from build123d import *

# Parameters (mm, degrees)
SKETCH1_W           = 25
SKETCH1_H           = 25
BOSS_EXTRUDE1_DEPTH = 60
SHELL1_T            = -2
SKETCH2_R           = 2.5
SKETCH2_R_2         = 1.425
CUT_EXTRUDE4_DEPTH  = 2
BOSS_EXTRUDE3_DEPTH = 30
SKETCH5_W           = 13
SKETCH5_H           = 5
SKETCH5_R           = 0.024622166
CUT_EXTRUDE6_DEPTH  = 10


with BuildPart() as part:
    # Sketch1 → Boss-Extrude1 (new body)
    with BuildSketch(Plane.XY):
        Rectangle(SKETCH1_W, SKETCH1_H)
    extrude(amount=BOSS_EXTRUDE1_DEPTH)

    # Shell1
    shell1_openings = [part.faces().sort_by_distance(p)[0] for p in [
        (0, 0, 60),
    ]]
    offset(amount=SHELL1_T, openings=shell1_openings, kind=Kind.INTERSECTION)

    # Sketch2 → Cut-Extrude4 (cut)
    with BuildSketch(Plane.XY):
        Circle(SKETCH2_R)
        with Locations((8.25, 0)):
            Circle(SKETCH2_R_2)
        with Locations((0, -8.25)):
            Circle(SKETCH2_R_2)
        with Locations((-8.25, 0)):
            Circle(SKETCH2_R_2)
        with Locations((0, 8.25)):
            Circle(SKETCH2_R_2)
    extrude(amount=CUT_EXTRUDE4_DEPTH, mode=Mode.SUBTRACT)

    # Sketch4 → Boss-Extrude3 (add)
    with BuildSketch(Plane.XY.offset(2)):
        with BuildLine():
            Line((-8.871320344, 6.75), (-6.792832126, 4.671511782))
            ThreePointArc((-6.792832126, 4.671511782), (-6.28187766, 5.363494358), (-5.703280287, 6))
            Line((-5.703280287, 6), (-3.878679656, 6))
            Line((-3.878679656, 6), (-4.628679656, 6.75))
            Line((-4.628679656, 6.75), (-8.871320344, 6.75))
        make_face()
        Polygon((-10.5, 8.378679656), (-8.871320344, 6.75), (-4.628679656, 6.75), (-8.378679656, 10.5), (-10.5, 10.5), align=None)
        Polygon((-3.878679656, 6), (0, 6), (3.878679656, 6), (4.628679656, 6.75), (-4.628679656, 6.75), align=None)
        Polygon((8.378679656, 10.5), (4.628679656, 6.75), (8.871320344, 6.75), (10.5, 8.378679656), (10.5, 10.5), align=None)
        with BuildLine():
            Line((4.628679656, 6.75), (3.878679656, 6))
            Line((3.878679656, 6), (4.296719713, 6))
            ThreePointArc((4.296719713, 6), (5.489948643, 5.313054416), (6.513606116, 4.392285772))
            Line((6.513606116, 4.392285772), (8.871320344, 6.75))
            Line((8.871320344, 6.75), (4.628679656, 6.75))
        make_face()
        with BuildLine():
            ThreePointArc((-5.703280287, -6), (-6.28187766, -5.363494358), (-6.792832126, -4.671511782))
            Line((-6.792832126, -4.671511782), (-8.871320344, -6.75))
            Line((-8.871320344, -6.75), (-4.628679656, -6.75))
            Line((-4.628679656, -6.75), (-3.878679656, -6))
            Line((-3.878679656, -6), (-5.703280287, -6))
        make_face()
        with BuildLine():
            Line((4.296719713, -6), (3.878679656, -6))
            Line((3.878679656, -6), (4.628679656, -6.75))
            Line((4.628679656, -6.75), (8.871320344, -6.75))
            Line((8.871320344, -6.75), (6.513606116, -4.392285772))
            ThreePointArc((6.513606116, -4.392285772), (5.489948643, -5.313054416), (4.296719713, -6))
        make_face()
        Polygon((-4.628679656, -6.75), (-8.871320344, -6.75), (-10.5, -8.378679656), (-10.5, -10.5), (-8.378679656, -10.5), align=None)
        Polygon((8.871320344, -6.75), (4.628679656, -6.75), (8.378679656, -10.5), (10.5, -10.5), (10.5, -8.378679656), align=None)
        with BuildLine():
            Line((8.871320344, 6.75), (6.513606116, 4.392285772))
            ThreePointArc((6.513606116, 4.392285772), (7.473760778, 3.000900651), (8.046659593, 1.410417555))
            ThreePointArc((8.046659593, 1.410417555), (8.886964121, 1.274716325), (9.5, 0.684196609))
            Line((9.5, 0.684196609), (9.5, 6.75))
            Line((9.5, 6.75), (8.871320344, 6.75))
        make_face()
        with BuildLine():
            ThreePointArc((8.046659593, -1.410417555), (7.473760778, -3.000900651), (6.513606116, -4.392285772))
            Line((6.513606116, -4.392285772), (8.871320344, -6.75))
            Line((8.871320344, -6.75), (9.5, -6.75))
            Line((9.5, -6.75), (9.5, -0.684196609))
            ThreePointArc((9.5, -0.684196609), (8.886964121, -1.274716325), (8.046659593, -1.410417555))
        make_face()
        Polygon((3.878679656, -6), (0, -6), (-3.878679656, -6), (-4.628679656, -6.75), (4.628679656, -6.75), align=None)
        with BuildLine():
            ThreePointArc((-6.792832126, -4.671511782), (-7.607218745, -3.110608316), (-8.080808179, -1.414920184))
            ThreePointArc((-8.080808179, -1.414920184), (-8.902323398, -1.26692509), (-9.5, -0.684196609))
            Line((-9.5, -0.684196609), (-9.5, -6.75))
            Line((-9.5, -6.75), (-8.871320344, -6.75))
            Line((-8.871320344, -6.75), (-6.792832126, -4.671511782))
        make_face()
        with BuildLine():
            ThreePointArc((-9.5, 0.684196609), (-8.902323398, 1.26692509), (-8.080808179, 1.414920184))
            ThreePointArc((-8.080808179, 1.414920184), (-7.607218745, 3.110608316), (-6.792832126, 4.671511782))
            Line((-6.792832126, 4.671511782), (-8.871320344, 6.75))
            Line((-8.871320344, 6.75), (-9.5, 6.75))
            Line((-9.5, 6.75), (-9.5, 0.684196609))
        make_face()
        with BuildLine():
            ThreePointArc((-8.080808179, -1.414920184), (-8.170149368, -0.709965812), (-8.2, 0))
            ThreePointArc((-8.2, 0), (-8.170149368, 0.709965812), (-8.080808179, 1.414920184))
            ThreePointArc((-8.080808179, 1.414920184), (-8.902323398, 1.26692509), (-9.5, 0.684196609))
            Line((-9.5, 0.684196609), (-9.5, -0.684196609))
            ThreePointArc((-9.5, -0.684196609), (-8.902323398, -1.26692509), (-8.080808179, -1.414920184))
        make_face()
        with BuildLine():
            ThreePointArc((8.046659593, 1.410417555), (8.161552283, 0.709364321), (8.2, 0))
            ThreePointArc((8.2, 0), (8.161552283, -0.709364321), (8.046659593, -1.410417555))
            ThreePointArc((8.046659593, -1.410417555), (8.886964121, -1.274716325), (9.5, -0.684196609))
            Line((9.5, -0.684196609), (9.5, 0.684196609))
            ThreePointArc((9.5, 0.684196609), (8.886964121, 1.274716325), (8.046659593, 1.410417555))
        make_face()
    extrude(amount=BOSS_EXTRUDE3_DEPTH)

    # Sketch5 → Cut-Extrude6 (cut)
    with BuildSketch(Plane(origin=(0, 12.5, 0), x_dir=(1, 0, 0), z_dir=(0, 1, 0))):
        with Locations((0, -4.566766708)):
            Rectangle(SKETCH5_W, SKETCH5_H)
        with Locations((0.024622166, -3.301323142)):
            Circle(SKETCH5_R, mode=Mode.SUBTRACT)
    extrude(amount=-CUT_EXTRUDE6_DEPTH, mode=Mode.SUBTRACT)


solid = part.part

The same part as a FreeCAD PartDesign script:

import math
import FreeCAD as App
import Part
import Sketcher
Q = App.Units.Quantity


def faces_at(feature, points):
    """Names of the faces that lie closest to the given points."""
    faces = feature.Shape.Faces
    near = lambda p: min(range(len(faces)), key=lambda i: faces[i].distToShape(Part.Vertex(*p))[0])
    return sorted({f"Face{near(p) + 1}" for p in points})

doc = App.newDocument("Part")
body = doc.addObject("PartDesign::Body", "Body")
body.AllowCompound = True

# Sketch on XY plane
sketch1 = body.newObject("Sketcher::SketchObject", "Sketch")
sketch1.AttachmentSupport = (doc.getObject("XY_Plane"), [""])
sketch1.MapMode = "FlatFace"
sketch1.addGeometry([
    Part.LineSegment(App.Vector(-12.5, 12.5, 0), App.Vector(-12.5, -12.5, 0)),
    Part.LineSegment(App.Vector(-12.5, -12.5, 0), App.Vector(12.5, -12.5, 0)),
    Part.LineSegment(App.Vector(12.5, -12.5, 0), App.Vector(12.5, 12.5, 0)),
    Part.LineSegment(App.Vector(12.5, 12.5, 0), App.Vector(-12.5, 12.5, 0)),
], False)
sketch1.addConstraint([
    Sketcher.Constraint("Coincident", 0, 2, 1, 1),
    Sketcher.Constraint("Coincident", 1, 2, 2, 1),
    Sketcher.Constraint("Coincident", 2, 2, 3, 1),
    Sketcher.Constraint("Coincident", 3, 2, 0, 1),
    Sketcher.Constraint("Vertical", 0),
    Sketcher.Constraint("Horizontal", 1),
    Sketcher.Constraint("Vertical", 2),
    Sketcher.Constraint("Horizontal", 3),
    Sketcher.Constraint("Symmetric", 0, 2, 2, 2, -1, 1),
    Sketcher.Constraint("Equal", 3, 0),
    Sketcher.Constraint("DistanceX", 1, 1, 1, 2, Q("25 mm")),
])
pad1 = body.newObject("PartDesign::Pad", "Pad")
pad1.Profile = sketch1
pad1.Length = 60
doc.recompute()

thickness = body.newObject("PartDesign::Thickness", "Thickness")
thickness.Base = (pad1, faces_at(pad1, [(0, 0, 60)]))
thickness.Value = 2
thickness.Reversed = True
thickness.Join = "Intersection"

# Sketch on XY plane
sketch2 = body.newObject("Sketcher::SketchObject", "Sketch001")
sketch2.AttachmentSupport = (doc.getObject("XY_Plane"), [""])
sketch2.MapMode = "FlatFace"
sketch2.addGeometry([
    Part.Circle(App.Vector(0, 0, 0), App.Vector(0, 0, 1), 2.5),  # 0
    Part.Circle(App.Vector(8.25, 0, 0), App.Vector(0, 0, 1), 1.425),  # 1
    Part.Circle(App.Vector(0, -8.25, 0), App.Vector(0, 0, 1), 1.425),  # 2
    Part.Circle(App.Vector(-8.25, 0, 0), App.Vector(0, 0, 1), 1.425),  # 3
    Part.Circle(App.Vector(0, 8.25, 0), App.Vector(0, 0, 1), 1.425),  # 4
], False)
sketch2.addConstraint([
    Sketcher.Constraint("Coincident", 0, 3, -1, 1),
    Sketcher.Constraint("Equal", 1, 2),
    Sketcher.Constraint("Equal", 2, 3),
    Sketcher.Constraint("Equal", 3, 4),
    Sketcher.Constraint("Symmetric", 1, 3, 3, 3, -1, 1),
    Sketcher.Constraint("Symmetric", 2, 3, 4, 3, -1, 1),
    Sketcher.Constraint("PointOnObject", 1, 3, -1),
    Sketcher.Constraint("PointOnObject", 2, 3, -2),
    Sketcher.Constraint("Diameter", 0, Q("5 mm")),
    Sketcher.Constraint("Diameter", 1, Q("2.85 mm")),
    Sketcher.Constraint("DistanceX", 3, 3, 1, 3, Q("16.5 mm")),
    Sketcher.Constraint("DistanceY", 2, 3, 4, 3, Q("16.5 mm")),
])
pocket1 = body.newObject("PartDesign::Pocket", "Pocket")
pocket1.Profile = sketch2
pocket1.Length = 2
pocket1.Reversed = True

# Sketch on XY plane
sketch3 = body.newObject("Sketcher::SketchObject", "Sketch002")
sketch3.AttachmentSupport = (doc.getObject("XY_Plane"), [""])
sketch3.MapMode = "FlatFace"
sketch3.AttachmentOffset = App.Placement(App.Vector(0, 0, 2), App.Rotation())
sketch3.addGeometry([
    Part.LineSegment(App.Vector(9.5, 6.75, 0), App.Vector(8.87132, 6.75, 0)),  # 0
    Part.LineSegment(App.Vector(8.87132, 6.75, 0), App.Vector(10.5, 8.37868, 0)),  # 1
    Part.LineSegment(App.Vector(10.5, 8.37868, 0), App.Vector(10.5, 10.5, 0)),  # 2
    Part.LineSegment(App.Vector(10.5, 10.5, 0), App.Vector(8.37868, 10.5, 0)),  # 3
    Part.LineSegment(App.Vector(8.37868, 10.5, 0), App.Vector(4.62868, 6.75, 0)),  # 4
    Part.LineSegment(App.Vector(4.62868, 6.75, 0), App.Vector(-4.62868, 6.75, 0)),  # 5
    Part.LineSegment(App.Vector(-4.62868, 6.75, 0), App.Vector(-8.37868, 10.5, 0)),  # 6
    Part.LineSegment(App.Vector(-8.37868, 10.5, 0), App.Vector(-10.5, 10.5, 0)),  # 7
    Part.LineSegment(App.Vector(-10.5, 10.5, 0), App.Vector(-10.5, 8.37868, 0)),  # 8
    Part.LineSegment(App.Vector(-10.5, 8.37868, 0), App.Vector(-8.87132, 6.75, 0)),  # 9
    Part.LineSegment(App.Vector(-8.87132, 6.75, 0), App.Vector(-9.5, 6.75, 0)),  # 10
    Part.LineSegment(App.Vector(-9.5, 6.75, 0), App.Vector(-9.5, -6.75, 0)),  # 11
    Part.LineSegment(App.Vector(-9.5, -6.75, 0), App.Vector(-8.87132, -6.75, 0)),  # 12
    Part.LineSegment(App.Vector(-8.87132, -6.75, 0), App.Vector(-10.5, -8.37868, 0)),  # 13
    Part.LineSegment(App.Vector(-10.5, -8.37868, 0), App.Vector(-10.5, -10.5, 0)),  # 14
    Part.LineSegment(App.Vector(-10.5, -10.5, 0), App.Vector(-8.37868, -10.5, 0)),  # 15
    Part.LineSegment(App.Vector(-8.37868, -10.5, 0), App.Vector(-4.62868, -6.75, 0)),  # 16
    Part.LineSegment(App.Vector(-4.62868, -6.75, 0), App.Vector(4.62868, -6.75, 0)),  # 17
    Part.LineSegment(App.Vector(4.62868, -6.75, 0), App.Vector(8.37868, -10.5, 0)),  # 18
    Part.LineSegment(App.Vector(8.37868, -10.5, 0), App.Vector(10.5, -10.5, 0)),  # 19
    Part.LineSegment(App.Vector(10.5, -10.5, 0), App.Vector(10.5, -8.37868, 0)),  # 20
    Part.LineSegment(App.Vector(10.5, -8.37868, 0), App.Vector(8.87132, -6.75, 0)),  # 21
    Part.LineSegment(App.Vector(8.87132, -6.75, 0), App.Vector(9.5, -6.75, 0)),  # 22
    Part.LineSegment(App.Vector(9.5, -6.75, 0), App.Vector(9.5, 6.75, 0)),  # 23
    Part.ArcOfCircle(Part.Circle(App.Vector(0.25782, 0, 0), App.Vector(0, 0, 1), 8.45782), math.radians(134.813662), math.radians(146.472957)),  # 24
    Part.LineSegment(App.Vector(-5.70328, 6, 0), App.Vector(4.29672, 6, 0)),  # 25
    Part.ArcOfCircle(Part.Circle(App.Vector(1.636854, 0, 0), App.Vector(0, 0, 1), 6.563146), math.radians(42.008034), math.radians(66.091766)),  # 26
    Part.ArcOfCircle(Part.Circle(App.Vector(1.636854, 0, 0), App.Vector(0, 0, 1), 6.563146), math.radians(12.409638), math.radians(42.008034)),  # 27
    Part.ArcOfCircle(Part.Circle(App.Vector(1.636854, 0, 0), App.Vector(0, 0, 1), 6.563146), math.radians(0), math.radians(12.409638)),  # 28
    Part.ArcOfCircle(Part.Circle(App.Vector(1.636854, 0, 0), App.Vector(0, 0, 1), 6.563146), math.radians(-12.409638), math.radians(0)),  # 29
    Part.ArcOfCircle(Part.Circle(App.Vector(1.636854, 0, 0), App.Vector(0, 0, 1), 6.563146), math.radians(-42.008034), math.radians(-12.409638)),  # 30
    Part.ArcOfCircle(Part.Circle(App.Vector(1.636854, 0, 0), App.Vector(0, 0, 1), 6.563146), math.radians(-66.091766), math.radians(-42.008034)),  # 31
    Part.LineSegment(App.Vector(4.29672, -6, 0), App.Vector(-5.70328, -6, 0)),  # 32
    Part.ArcOfCircle(Part.Circle(App.Vector(0.25782, 0, 0), App.Vector(0, 0, 1), 8.45782), math.radians(-146.472957), math.radians(-134.813662)),  # 33
    Part.ArcOfCircle(Part.Circle(App.Vector(0.257819, 0, 0), App.Vector(0, 0, 1), 8.457819), math.radians(-170.369629), math.radians(-146.472957)),  # 34
    Part.ArcOfCircle(Part.Circle(App.Vector(0.25782, 0, 0), App.Vector(0, 0, 1), 8.45782), math.radians(-180), math.radians(-170.369629)),  # 35
    Part.ArcOfCircle(Part.Circle(App.Vector(0.25782, 0, 0), App.Vector(0, 0, 1), 8.45782), math.radians(170.369629), math.radians(180)),  # 36
    Part.ArcOfCircle(Part.Circle(App.Vector(0.257819, 0, 0), App.Vector(0, 0, 1), 8.457819), math.radians(146.472957), math.radians(170.369629)),  # 37
], False)
sketch3.addConstraint([
    Sketcher.Constraint("Coincident", 0, 2, 1, 1),
    Sketcher.Constraint("Coincident", 1, 2, 2, 1),
    Sketcher.Constraint("Coincident", 2, 2, 3, 1),
    Sketcher.Constraint("Coincident", 3, 2, 4, 1),
    Sketcher.Constraint("Coincident", 4, 2, 5, 1),
    Sketcher.Constraint("Coincident", 5, 2, 6, 1),
    Sketcher.Constraint("Coincident", 6, 2, 7, 1),
    Sketcher.Constraint("Coincident", 7, 2, 8, 1),
    Sketcher.Constraint("Coincident", 8, 2, 9, 1),
    Sketcher.Constraint("Coincident", 9, 2, 10, 1),
    Sketcher.Constraint("Coincident", 10, 2, 11, 1),
    Sketcher.Constraint("Coincident", 11, 2, 12, 1),
    Sketcher.Constraint("Coincident", 12, 2, 13, 1),
    Sketcher.Constraint("Coincident", 13, 2, 14, 1),
    Sketcher.Constraint("Coincident", 14, 2, 15, 1),
    Sketcher.Constraint("Coincident", 15, 2, 16, 1),
    Sketcher.Constraint("Coincident", 16, 2, 17, 1),
    Sketcher.Constraint("Coincident", 17, 2, 18, 1),
    Sketcher.Constraint("Coincident", 18, 2, 19, 1),
    Sketcher.Constraint("Coincident", 19, 2, 20, 1),
    Sketcher.Constraint("Coincident", 20, 2, 21, 1),
    Sketcher.Constraint("Coincident", 21, 2, 22, 1),
    Sketcher.Constraint("Coincident", 22, 2, 23, 1),
    Sketcher.Constraint("Coincident", 23, 2, 0, 1),
    Sketcher.Constraint("Coincident", 24, 1, 25, 1),
    Sketcher.Constraint("Coincident", 25, 2, 26, 2),
    Sketcher.Constraint("Tangent", 26, 1, 27, 2),
    Sketcher.Constraint("Tangent", 27, 1, 28, 2),
    Sketcher.Constraint("Tangent", 28, 1, 29, 2),
    Sketcher.Constraint("Tangent", 29, 1, 30, 2),
    Sketcher.Constraint("Tangent", 30, 1, 31, 2),
    Sketcher.Constraint("Coincident", 31, 1, 32, 1),
    Sketcher.Constraint("Coincident", 32, 2, 33, 2),
    Sketcher.Constraint("Tangent", 33, 1, 34, 2),
    Sketcher.Constraint("Tangent", 34, 1, 35, 2),
    Sketcher.Constraint("Tangent", 35, 1, 36, 2),
    Sketcher.Constraint("Tangent", 36, 1, 37, 2),
    Sketcher.Constraint("Tangent", 37, 1, 24, 2),
    Sketcher.Constraint("Horizontal", 0),
    Sketcher.Constraint("Vertical", 2),
    Sketcher.Constraint("Horizontal", 3),
    Sketcher.Constraint("Horizontal", 5),
    Sketcher.Constraint("Horizontal", 7),
    Sketcher.Constraint("Vertical", 8),
    Sketcher.Constraint("Horizontal", 10),
    Sketcher.Constraint("Vertical", 11),
    Sketcher.Constraint("Horizontal", 12),
    Sketcher.Constraint("Vertical", 14),
    Sketcher.Constraint("Horizontal", 15),
    Sketcher.Constraint("Horizontal", 17),
    Sketcher.Constraint("Horizontal", 19),
    Sketcher.Constraint("Vertical", 20),
    Sketcher.Constraint("Horizontal", 22),
    Sketcher.Constraint("Vertical", 23),
    Sketcher.Constraint("Horizontal", 25),
    Sketcher.Constraint("Horizontal", 32),
    Sketcher.Constraint("Coincident", 28, 3, 26, 3),
    Sketcher.Constraint("Coincident", 30, 3, 26, 3),
    Sketcher.Constraint("Coincident", 33, 3, 24, 3),
    Sketcher.Constraint("Coincident", 35, 3, 24, 3),
    Sketcher.Constraint("Equal", 30, 31),
    Sketcher.Constraint("Equal", 24, 33),
    Sketcher.Constraint("Symmetric", 0, 2, 12, 2, -1, 1),
    Sketcher.Constraint("Symmetric", 1, 2, 13, 2, -1, 1),
    Sketcher.Constraint("Symmetric", 3, 2, 15, 2, -1, 1),
    Sketcher.Constraint("Symmetric", 4, 2, 16, 2, -1, 1),
    Sketcher.Constraint("Symmetric", 6, 2, 18, 2, -1, 1),
    Sketcher.Constraint("Symmetric", 8, 2, 20, 2, -1, 1),
    Sketcher.Constraint("Symmetric", 9, 2, 21, 2, -1, 1),
    Sketcher.Constraint("Symmetric", 28, 1, 35, 1, -1, 1),
    Sketcher.Constraint("Symmetric", 3, 2, 6, 2, -2),
    Sketcher.Constraint("Symmetric", 1, 2, 8, 2, -2),
    Sketcher.Constraint("Symmetric", 0, 2, 9, 2, -2),
    Sketcher.Constraint("Symmetric", 27, 1, 29, 1, -1),
    Sketcher.Constraint("Symmetric", 24, 1, 32, 2, -1),
    Sketcher.Constraint("PointOnObject", 28, 1, -1),
    Sketcher.Constraint("Parallel", 1, 4),
    Sketcher.Constraint("Perpendicular", 4, 6),
    Sketcher.Constraint("Parallel", 6, 9),
    Sketcher.Constraint("Perpendicular", 16, 18),
    Sketcher.Constraint("Horizontal", 0, 2, 4, 2),
    Sketcher.Constraint("Vertical", 26, 1, 30, 1),
    Sketcher.Constraint("Vertical", 34, 1, 36, 1),
    Sketcher.Constraint("Vertical", 33, 1, 37, 1),
    Sketcher.Constraint("Equal", 0, 10),
    Sketcher.Constraint("Equal", 19, 2),
    Sketcher.Constraint("DistanceX", 25, 1, 25, 2, Q("10 mm")),
    Sketcher.Constraint("DistanceY", 11, 2, 11, 1, Q("13.5 mm")),
    Sketcher.Constraint("DistanceY", -1, 1, 24, 1, Q("6 mm")),
    Sketcher.Constraint("DistanceX", 8, 2, 10, 2, Q("1 mm")),
    Sketcher.Constraint("DistanceX", -1, 1, 1, 2, Q("10.5 mm")),
    Sketcher.Constraint("DistanceY", -1, 1, 2, 2, Q("10.5 mm")),
    Sketcher.Constraint("DistanceX", -1, 1, 28, 1, Q("8.2 mm")),
    Sketcher.Constraint("Radius", 24, Q("8.45782 mm")),
    Sketcher.Constraint("Distance", 1, Q("2.303301 mm")),
    Sketcher.Constraint("DistanceX", -1, 1, 27, 1, Q("8.04666 mm")),
    Sketcher.Constraint("DistanceY", 33, 1, -1, 1, Q("4.671512 mm")),
    Sketcher.Constraint("DistanceX", 34, 1, -1, 1, Q("8.080808 mm")),
    Sketcher.Constraint("DistanceY", 27, 1, 26, 1, Q("2.981868 mm")),
])
pad2 = body.newObject("PartDesign::Pad", "Pad001")
pad2.Profile = sketch3
pad2.Length = 30

# Sketch on XZ plane
sketch4 = body.newObject("Sketcher::SketchObject", "Sketch003")
sketch4.AttachmentSupport = (doc.getObject("XZ_Plane"), [""])
sketch4.MapMode = "FlatFace"
sketch4.AttachmentOffset = App.Placement(App.Vector(0, 0, -12.5), App.Rotation())
sketch4.addGeometry([
    Part.LineSegment(App.Vector(-6.5, 2.066767, 0), App.Vector(-6.5, 7.066767, 0)),  # 0
    Part.LineSegment(App.Vector(-6.5, 7.066767, 0), App.Vector(6.5, 7.066767, 0)),  # 1
    Part.LineSegment(App.Vector(6.5, 7.066767, 0), App.Vector(6.5, 2.066767, 0)),  # 2
    Part.LineSegment(App.Vector(6.5, 2.066767, 0), App.Vector(-6.5, 2.066767, 0)),  # 3
    Part.Circle(App.Vector(0.024622, 3.301323, 0), App.Vector(0, 0, 1), 0.024622),  # 4
], False)
sketch4.addConstraint([
    Sketcher.Constraint("Coincident", 0, 2, 1, 1),
    Sketcher.Constraint("Coincident", 1, 2, 2, 1),
    Sketcher.Constraint("Coincident", 2, 2, 3, 1),
    Sketcher.Constraint("Coincident", 3, 2, 0, 1),
    Sketcher.Constraint("Vertical", 0),
    Sketcher.Constraint("Horizontal", 1),
    Sketcher.Constraint("Vertical", 2),
    Sketcher.Constraint("Horizontal", 3),
    Sketcher.Constraint("DistanceX", 1, 1, 1, 2, Q("13 mm")),
    Sketcher.Constraint("DistanceY", 0, 1, 0, 2, Q("5 mm")),
    Sketcher.Constraint("DistanceX", 0, 2, -1, 1, Q("6.5 mm")),
    Sketcher.Constraint("Diameter", 4, Q("0.049244 mm")),
    Sketcher.Constraint("DistanceX", -1, 1, 4, 3, Q("0.024622 mm")),
    Sketcher.Constraint("DistanceY", -1, 1, 4, 3, Q("3.301323 mm")),
    Sketcher.Constraint("DistanceY", -1, 1, 0, 2, Q("7.066767 mm")),
])
pocket2 = body.newObject("PartDesign::Pocket", "Pocket001")
pocket2.Profile = sketch4
pocket2.Length = 10
pocket2.Reversed = True

doc.recompute()
